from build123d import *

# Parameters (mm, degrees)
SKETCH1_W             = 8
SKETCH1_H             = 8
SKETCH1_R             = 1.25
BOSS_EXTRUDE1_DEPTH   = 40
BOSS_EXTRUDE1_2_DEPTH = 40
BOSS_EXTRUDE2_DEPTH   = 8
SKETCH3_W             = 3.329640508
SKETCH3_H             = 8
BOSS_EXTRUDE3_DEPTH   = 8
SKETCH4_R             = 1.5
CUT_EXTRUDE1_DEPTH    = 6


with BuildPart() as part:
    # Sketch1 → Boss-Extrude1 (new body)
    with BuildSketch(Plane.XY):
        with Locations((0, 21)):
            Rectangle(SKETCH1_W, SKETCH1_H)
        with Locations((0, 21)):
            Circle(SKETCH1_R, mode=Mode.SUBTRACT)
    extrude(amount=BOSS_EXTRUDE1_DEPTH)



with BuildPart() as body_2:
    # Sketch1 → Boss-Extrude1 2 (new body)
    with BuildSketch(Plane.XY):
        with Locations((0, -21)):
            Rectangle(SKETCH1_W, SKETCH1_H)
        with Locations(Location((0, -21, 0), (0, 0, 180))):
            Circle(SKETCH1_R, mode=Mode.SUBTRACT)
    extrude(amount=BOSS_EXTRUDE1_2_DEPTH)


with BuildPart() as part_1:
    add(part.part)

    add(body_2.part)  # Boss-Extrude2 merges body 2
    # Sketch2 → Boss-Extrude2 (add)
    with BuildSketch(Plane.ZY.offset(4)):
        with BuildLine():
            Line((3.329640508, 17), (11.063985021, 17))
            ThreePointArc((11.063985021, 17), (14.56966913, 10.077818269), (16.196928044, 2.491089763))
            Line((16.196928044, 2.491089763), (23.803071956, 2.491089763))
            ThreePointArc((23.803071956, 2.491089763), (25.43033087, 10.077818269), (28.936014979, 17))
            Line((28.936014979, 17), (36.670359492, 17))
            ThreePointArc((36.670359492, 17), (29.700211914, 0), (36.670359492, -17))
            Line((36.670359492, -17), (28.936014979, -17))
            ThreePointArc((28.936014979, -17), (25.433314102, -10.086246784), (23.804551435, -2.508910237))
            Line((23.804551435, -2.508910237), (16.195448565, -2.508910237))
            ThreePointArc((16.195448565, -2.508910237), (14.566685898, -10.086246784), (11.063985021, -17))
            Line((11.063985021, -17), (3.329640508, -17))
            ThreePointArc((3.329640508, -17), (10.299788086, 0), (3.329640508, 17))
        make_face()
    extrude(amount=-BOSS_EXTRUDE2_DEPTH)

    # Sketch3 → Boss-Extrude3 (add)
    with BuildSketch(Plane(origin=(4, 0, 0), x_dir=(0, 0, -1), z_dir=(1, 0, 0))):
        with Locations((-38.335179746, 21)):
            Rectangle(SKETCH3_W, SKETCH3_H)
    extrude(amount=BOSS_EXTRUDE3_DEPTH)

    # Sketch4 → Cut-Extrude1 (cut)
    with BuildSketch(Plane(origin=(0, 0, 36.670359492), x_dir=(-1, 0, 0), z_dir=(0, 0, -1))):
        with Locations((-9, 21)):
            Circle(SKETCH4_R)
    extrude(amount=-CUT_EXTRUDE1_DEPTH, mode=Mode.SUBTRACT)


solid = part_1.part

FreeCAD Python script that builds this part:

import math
import FreeCAD as App
import Part
import Sketcher
from FreeCAD import Vector


def add_polygon(sketch, points):
    """Adds a closed chain of lines whose ends are joined by coincident constraints."""
    first, n = sketch.GeometryCount, len(points)
    for a, b in zip(points, points[1:] + points[:1]):
        sketch.addGeometry(Part.LineSegment(App.Vector(*a, 0), App.Vector(*b, 0)), False)
    for i in range(n):
        sketch.addConstraint(Sketcher.Constraint("Coincident", first + i, 2, first + (i + 1) % n, 1))

doc = App.newDocument("Part")
body = doc.addObject("PartDesign::Body", "Body")

# Sketch on XY plane
sketch1 = body.newObject("Sketcher::SketchObject", "Sketch")
sketch1.AttachmentSupport = (doc.getObject("XY_Plane"), [""])
sketch1.MapMode = "FlatFace"
add_polygon(sketch1, [(-4, 25), (-4, 17), (4, 17), (4, 25)])  # lines 0-3
sketch1.addGeometry(Part.Circle(Vector(0, 21, 0), Vector(0, 0, 1), 1.2), False)  # 4
sketch1.addConstraint(Sketcher.Constraint("Vertical", 0))
sketch1.addConstraint(Sketcher.Constraint("Horizontal", 1))
sketch1.addConstraint(Sketcher.Constraint("Vertical", 2))
sketch1.addConstraint(Sketcher.Constraint("Horizontal", 3))
sketch1.addConstraint(Sketcher.Constraint("PointOnObject", 4, 3, -2))
sketch1.addConstraint(Sketcher.Constraint("Equal", 3, 0))
sketch1.addConstraint(Sketcher.Constraint("Diameter", 4, 2.5))
sketch1.addConstraint(Sketcher.Constraint("DistanceX", 1, 1, 1, 2, 8.0))
sketch1.addConstraint(Sketcher.Constraint("DistanceY", -1, 1, 4, 3, 21.0))
sketch1.addConstraint(Sketcher.Constraint("DistanceX", 0, 2, -1, 1, 4.0))
sketch1.addConstraint(Sketcher.Constraint("DistanceY", -1, 1, 0, 2, 17.0))
pad1 = body.newObject("PartDesign::Pad", "Pad")
pad1.Profile = sketch1
pad1.Length = 40
body2 = doc.addObject("PartDesign::Body", "Body001")

# Sketch on XY plane
sketch2 = body2.newObject("Sketcher::SketchObject", "Sketch001")
sketch2.AttachmentSupport = (doc.getObject("XY_Plane001"), [""])
sketch2.MapMode = "FlatFace"
add_polygon(sketch2, [(-4, -17), (-4, -25), (4, -25), (4, -17)])  # lines 0-3
sketch2.addGeometry(Part.Circle(Vector(0, -21, 0), Vector(0, 0, 1), 1.2), False)  # 4
sketch2.addConstraint(Sketcher.Constraint("Vertical", 0))
sketch2.addConstraint(Sketcher.Constraint("Horizontal", 1))
sketch2.addConstraint(Sketcher.Constraint("Vertical", 2))
sketch2.addConstraint(Sketcher.Constraint("Horizontal", 3))
sketch2.addConstraint(Sketcher.Constraint("PointOnObject", 4, 3, -2))
sketch2.addConstraint(Sketcher.Constraint("Equal", 3, 0))
sketch2.addConstraint(Sketcher.Constraint("Diameter", 4, 2.5))
sketch2.addConstraint(Sketcher.Constraint("DistanceX", 1, 1, 1, 2, 8.0))
sketch2.addConstraint(Sketcher.Constraint("DistanceY", 4, 3, -1, 1, 21.0))
sketch2.addConstraint(Sketcher.Constraint("DistanceX", 0, 2, -1, 1, 4.0))
sketch2.addConstraint(Sketcher.Constraint("DistanceY", 0, 2, -1, 1, 25.0))
pad2 = body2.newObject("PartDesign::Pad", "Pad001")
pad2.Profile = sketch2
pad2.Length = 40
body.AllowCompound = True
doc.recompute()

boolean = body.newObject("PartDesign::Boolean", "Boolean")
boolean.Type = "Fuse"
boolean.addObjects([body2])

# Sketch on YZ plane
sketch3 = body.newObject("Sketcher::SketchObject", "Sketch002")
sketch3.AttachmentSupport = (doc.getObject("YZ_Plane"), [""])
sketch3.MapMode = "FlatFace"
sketch3.AttachmentOffset = App.Placement(Vector(0, 0, -4), App.Rotation())
sketch3.addGeometry(Part.LineSegment(Vector(17, 11, 0), Vector(17, 3, 0)), False)
sketch3.addGeometry(Part.ArcOfCircle(Part.Circle(Vector(0, -14, 0), Vector(0, 0, 1), 24), math.radians(45), math.radians(135)), False)
sketch3.addGeometry(Part.LineSegment(Vector(-17, 3, 0), Vector(-17, 11, 0)), False)
sketch3.addGeometry(Part.ArcOfCircle(Part.Circle(Vector(0, -14, 0), Vector(0, 0, 1), 30), math.radians(95), math.radians(124)), False)
sketch3.addGeometry(Part.LineSegment(Vector(-3, 16, 0), Vector(-3, 24, 0)), False)
sketch3.addGeometry(Part.ArcOfCircle(Part.Circle(Vector(0, 54, 0), Vector(0, 0, 1), 30), math.radians(-124), math.radians(-95)), False)
sketch3.addGeometry(Part.LineSegment(Vector(-17, 29, 0), Vector(-17, 37, 0)), False)
sketch3.addGeometry(Part.ArcOfCircle(Part.Circle(Vector(0, 54, 0), Vector(0, 0, 1), 24), math.radians(-135), math.radians(-45)), False)
sketch3.addGeometry(Part.LineSegment(Vector(17, 37, 0), Vector(17, 29, 0)), False)
sketch3.addGeometry(Part.ArcOfCircle(Part.Circle(Vector(0, 54, 0), Vector(0, 0, 1), 30), math.radians(-85), math.radians(-56)), False)
sketch3.addGeometry(Part.LineSegment(Vector(2, 24, 0), Vector(2, 16, 0)), False)
sketch3.addGeometry(Part.ArcOfCircle(Part.Circle(Vector(0, -14, 0), Vector(0, 0, 1), 30), math.radians(56), math.radians(85)), False)
sketch3.addConstraint(Sketcher.Constraint("Coincident", 0, 2, 1, 1))
sketch3.addConstraint(Sketcher.Constraint("Coincident", 1, 2, 2, 1))
sketch3.addConstraint(Sketcher.Constraint("Coincident", 2, 2, 3, 2))
sketch3.addConstraint(Sketcher.Constraint("Coincident", 3, 1, 4, 1))
sketch3.addConstraint(Sketcher.Constraint("Coincident", 4, 2, 5, 2))
sketch3.addConstraint(Sketcher.Constraint("Coincident", 5, 1, 6, 1))
sketch3.addConstraint(Sketcher.Constraint("Coincident", 6, 2, 7, 1))
sketch3.addConstraint(Sketcher.Constraint("Coincident", 7, 2, 8, 1))
sketch3.addConstraint(Sketcher.Constraint("Coincident", 8, 2, 9, 2))
sketch3.addConstraint(Sketcher.Constraint("Coincident", 9, 1, 10, 1))
sketch3.addConstraint(Sketcher.Constraint("Coincident", 10, 2, 11, 2))
sketch3.addConstraint(Sketcher.Constraint("Coincident", 11, 1, 0, 1))
sketch3.addConstraint(Sketcher.Constraint("Vertical", 0))
sketch3.addConstraint(Sketcher.Constraint("Vertical", 2))
sketch3.addConstraint(Sketcher.Constraint("Vertical", 4))
sketch3.addConstraint(Sketcher.Constraint("Vertical", 6))
sketch3.addConstraint(Sketcher.Constraint("Vertical", 8))
sketch3.addConstraint(Sketcher.Constraint("Vertical", 10))
sketch3.addConstraint(Sketcher.Constraint("Coincident", 3, 3, 1, 3))
sketch3.addConstraint(Sketcher.Constraint("Coincident", 7, 3, 5, 3))
sketch3.addConstraint(Sketcher.Constraint("Coincident", 9, 3, 5, 3))
sketch3.addConstraint(Sketcher.Constraint("Coincident", 11, 3, 1, 3))
sketch3.addConstraint(Sketcher.Constraint("Equal", 3, 5))
sketch3.addConstraint(Sketcher.Constraint("Equal", 1, 7))
sketch3.addConstraint(Sketcher.Constraint("Equal", 5, 9))
sketch3.addConstraint(Sketcher.Constraint("Equal", 9, 11))
sketch3.addConstraint(Sketcher.Constraint("Symmetric", 0, 2, 1, 2, -2))
sketch3.addConstraint(Sketcher.Constraint("Symmetric", 6, 2, 7, 2, -2))
sketch3.addConstraint(Sketcher.Constraint("Vertical", 2, 2, 5, 1))
sketch3.addConstraint(Sketcher.Constraint("DistanceX", -1, 1, 0, 2, 17.0))
sketch3.addConstraint(Sketcher.Constraint("DistanceX", 4, 2, 9, 1, 5.0))
sketch3.addConstraint(Sketcher.Constraint("Radius", 1, 24.216342))
sketch3.addConstraint(Sketcher.Constraint("Radius", 3, 30.216342))
sketch3.addConstraint(Sketcher.Constraint("DistanceY", 4, 1, 4, 2, 7.609103))
sketch3.addConstraint(Sketcher.Constraint("DistanceY", 10, 2, 10, 1, 7.606144))
sketch3.addConstraint(Sketcher.Constraint("DistanceY", -1, 1, 0, 2, 3.329641))
pad3 = body.newObject("PartDesign::Pad", "Pad002")
pad3.Profile = sketch3
pad3.Length = 8

# Sketch on YZ plane
sketch4 = body.newObject("Sketcher::SketchObject", "Sketch003")
sketch4.AttachmentSupport = (doc.getObject("YZ_Plane"), [""])
sketch4.MapMode = "FlatFace"
sketch4.AttachmentOffset = App.Placement(Vector(0, 0, 4), App.Rotation())
add_polygon(sketch4, [(25, 40), (17, 40), (17, 36.7), (25, 36.7)])  # lines 0-3
sketch4.addConstraint(Sketcher.Constraint("Horizontal", 0))
sketch4.addConstraint(Sketcher.Constraint("Vertical", 1))
sketch4.addConstraint(Sketcher.Constraint("Horizontal", 2))
sketch4.addConstraint(Sketcher.Constraint("Vertical", 3))
sketch4.addConstraint(Sketcher.Constraint("DistanceX", 0, 2, 0, 1, 8.0))
sketch4.addConstraint(Sketcher.Constraint("DistanceX", -1, 1, 0, 2, 17.0))
sketch4.addConstraint(Sketcher.Constraint("DistanceY", -1, 1, 0, 2, 40.0))
sketch4.addConstraint(Sketcher.Constraint("DistanceY", 1, 2, 1, 1, 3.329641))
pad4 = body.newObject("PartDesign::Pad", "Pad003")
pad4.Profile = sketch4
pad4.Length = 8

# Sketch on XY plane
sketch5 = body.newObject("Sketcher::SketchObject", "Sketch004")
sketch5.AttachmentSupport = (doc.getObject("XY_Plane"), [""])
sketch5.MapMode = "FlatFace"
sketch5.AttachmentOffset = App.Placement(Vector(0, 0, 36.670359), App.Rotation())
sketch5.addGeometry(Part.Circle(Vector(9, 21, 0), Vector(0, 0, 1), 1.5), False)
sketch5.addConstraint(Sketcher.Constraint("Diameter", 0, 3.0))
sketch5.addConstraint(Sketcher.Constraint("DistanceX", -1, 1, 0, 3, 9.0))
sketch5.addConstraint(Sketcher.Constraint("DistanceY", -1, 1, 0, 3, 21.0))
pocket1 = body.newObject("PartDesign::Pocket", "Pocket")
pocket1.Profile = sketch5
pocket1.Length = 6
pocket1.Reversed = True

doc.recompute()
